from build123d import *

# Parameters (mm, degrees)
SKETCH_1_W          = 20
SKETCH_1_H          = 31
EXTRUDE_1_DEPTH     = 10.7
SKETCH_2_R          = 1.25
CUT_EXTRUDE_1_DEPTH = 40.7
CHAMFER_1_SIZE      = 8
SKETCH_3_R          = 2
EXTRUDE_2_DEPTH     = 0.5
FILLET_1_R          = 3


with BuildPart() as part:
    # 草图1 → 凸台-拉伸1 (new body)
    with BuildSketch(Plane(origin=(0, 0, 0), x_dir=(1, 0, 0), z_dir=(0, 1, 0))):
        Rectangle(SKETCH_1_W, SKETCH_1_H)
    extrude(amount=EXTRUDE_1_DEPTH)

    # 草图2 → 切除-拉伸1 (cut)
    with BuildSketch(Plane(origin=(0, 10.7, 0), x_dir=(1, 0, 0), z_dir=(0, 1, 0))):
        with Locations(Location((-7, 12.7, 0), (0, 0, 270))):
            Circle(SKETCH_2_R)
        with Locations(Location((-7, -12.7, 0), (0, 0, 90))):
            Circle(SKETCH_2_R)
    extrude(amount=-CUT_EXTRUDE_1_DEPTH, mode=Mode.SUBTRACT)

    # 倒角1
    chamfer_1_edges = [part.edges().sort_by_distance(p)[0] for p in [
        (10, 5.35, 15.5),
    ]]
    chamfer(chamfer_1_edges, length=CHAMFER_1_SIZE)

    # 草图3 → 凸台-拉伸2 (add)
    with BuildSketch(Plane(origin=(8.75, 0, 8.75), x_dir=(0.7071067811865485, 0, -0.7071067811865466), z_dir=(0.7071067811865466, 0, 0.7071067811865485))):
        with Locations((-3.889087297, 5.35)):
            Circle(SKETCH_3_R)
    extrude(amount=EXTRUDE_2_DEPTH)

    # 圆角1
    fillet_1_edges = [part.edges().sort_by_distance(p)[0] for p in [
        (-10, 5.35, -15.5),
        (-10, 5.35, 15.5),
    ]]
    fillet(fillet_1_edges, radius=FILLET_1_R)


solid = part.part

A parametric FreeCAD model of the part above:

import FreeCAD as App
import Part
import Sketcher

V = App.Vector


def edges_at(feature, points):
    """Names of the edges that pass closest to the given points."""
    edges = feature.Shape.Edges
    near = lambda p: min(range(len(edges)), key=lambda i: edges[i].distToShape(Part.Vertex(*p))[0])
    return sorted({f"Edge{near(p) + 1}" for p in points})

doc = App.newDocument("Part")
body = doc.addObject("PartDesign::Body", "Body")

# Sketch on XZ plane
sketch1 = doc.addObject("Sketcher::SketchObject", "Sketch")
body.addObject(sketch1)
sketch1.AttachmentSupport = (doc.XZ_Plane, [""])
sketch1.MapMode = "FlatFace"
sketch1.addGeometry(Part.LineSegment(V(-10, -15.5, 0), V(-10, 15.5, 0)), False)
sketch1.addGeometry(Part.LineSegment(V(-10, 15.5, 0), V(10, 15.5, 0)), False)
sketch1.addGeometry(Part.LineSegment(V(10, 15.5, 0), V(10, -15.5, 0)), False)
sketch1.addGeometry(Part.LineSegment(V(10, -15.5, 0), V(-10, -15.5, 0)), False)
sketch1.addConstraint(Sketcher.Constraint("Coincident", 0, 2, 1, 1))
sketch1.addConstraint(Sketcher.Constraint("Coincident", 1, 2, 2, 1))
sketch1.addConstraint(Sketcher.Constraint("Coincident", 2, 2, 3, 1))
sketch1.addConstraint(Sketcher.Constraint("Coincident", 3, 2, 0, 1))
sketch1.addConstraint(Sketcher.Constraint("Vertical", 0))
sketch1.addConstraint(Sketcher.Constraint("Horizontal", 1))
sketch1.addConstraint(Sketcher.Constraint("Vertical", 2))
sketch1.addConstraint(Sketcher.Constraint("Horizontal", 3))
sketch1.addConstraint(Sketcher.Constraint("Symmetric", 0, 2, 2, 2, -1, 1))
sketch1.addConstraint(Sketcher.Constraint("DistanceX", 1, 1, 1, 2, 20.0))
sketch1.addConstraint(Sketcher.Constraint("DistanceY", 0, 1, 0, 2, 31.0))
pad1 = doc.addObject("PartDesign::Pad", "Pad")
body.addObject(pad1)
pad1.Profile = sketch1
pad1.Length = 10.7
pad1.Reversed = True

# Sketch on XZ plane
sketch2 = doc.addObject("Sketcher::SketchObject", "Sketch001")
body.addObject(sketch2)
sketch2.AttachmentSupport = (doc.XZ_Plane, [""])
sketch2.MapMode = "FlatFace"
sketch2.AttachmentOffset = App.Placement(V(0, 0, -10.7), App.Rotation())
sketch2.addGeometry(Part.Circle(V(-7, -12.7, 0), V(0, 0, 1), 1.25), False)
sketch2.addGeometry(Part.Circle(V(-7, 12.7, 0), V(0, 0, 1), 1.25), False)
sketch2.addConstraint(Sketcher.Constraint("Equal", 0, 1))
sketch2.addConstraint(Sketcher.Constraint("Symmetric", 0, 3, 1, 3, -1))
sketch2.addConstraint(Sketcher.Constraint("Diameter", 0, 2.5))
sketch2.addConstraint(Sketcher.Constraint("DistanceX", 0, 3, -1, 1, 7.0))
sketch2.addConstraint(Sketcher.Constraint("DistanceY", 0, 3, -1, 1, 12.7))
pocket1 = doc.addObject("PartDesign::Pocket", "Pocket")
body.addObject(pocket1)
pocket1.Profile = sketch2
pocket1.Length = 40.7
pocket1.Reversed = True
doc.recompute()

chamfer = doc.addObject("PartDesign::Chamfer", "Chamfer")
body.addObject(chamfer)
chamfer.Base = (pocket1, edges_at(pocket1, [(10, 5.35, 15.5)]))
chamfer.Size = 8

# Sketch on an angled plane
sketch3 = doc.addObject("Sketcher::SketchObject", "Sketch002")
body.addObject(sketch3)
sketch3.Placement = App.Placement(V(8.75, 0, 8.75), App.Rotation(V(0.707106781, 0, -0.707106781), V(0, 0.999999999, 0), V(0.707106781, 0, 0.707106781), "ZXY"))
sketch3.addGeometry(Part.Circle(V(-3.889087, 5.35, 0), V(0, 0, 1), 2), False)
sketch3.addConstraint(Sketcher.Constraint("Diameter", 0, 4.0))
sketch3.addConstraint(Sketcher.Constraint("DistanceY", -1, 1, 0, 3, 5.35))
sketch3.addConstraint(Sketcher.Constraint("DistanceX", 0, 3, -1, 1, 3.889087))
pad2 = doc.addObject("PartDesign::Pad", "Pad001")
body.addObject(pad2)
pad2.Profile = sketch3
pad2.Length = 0.5
doc.recompute()

fillet = doc.addObject("PartDesign::Fillet", "Fillet")
body.addObject(fillet)
fillet.Base = (pad2, edges_at(pad2, [(-10, 5.35, -15.5), (-10, 5.35, 15.5)]))
fillet.Radius = 3

doc.recompute()
